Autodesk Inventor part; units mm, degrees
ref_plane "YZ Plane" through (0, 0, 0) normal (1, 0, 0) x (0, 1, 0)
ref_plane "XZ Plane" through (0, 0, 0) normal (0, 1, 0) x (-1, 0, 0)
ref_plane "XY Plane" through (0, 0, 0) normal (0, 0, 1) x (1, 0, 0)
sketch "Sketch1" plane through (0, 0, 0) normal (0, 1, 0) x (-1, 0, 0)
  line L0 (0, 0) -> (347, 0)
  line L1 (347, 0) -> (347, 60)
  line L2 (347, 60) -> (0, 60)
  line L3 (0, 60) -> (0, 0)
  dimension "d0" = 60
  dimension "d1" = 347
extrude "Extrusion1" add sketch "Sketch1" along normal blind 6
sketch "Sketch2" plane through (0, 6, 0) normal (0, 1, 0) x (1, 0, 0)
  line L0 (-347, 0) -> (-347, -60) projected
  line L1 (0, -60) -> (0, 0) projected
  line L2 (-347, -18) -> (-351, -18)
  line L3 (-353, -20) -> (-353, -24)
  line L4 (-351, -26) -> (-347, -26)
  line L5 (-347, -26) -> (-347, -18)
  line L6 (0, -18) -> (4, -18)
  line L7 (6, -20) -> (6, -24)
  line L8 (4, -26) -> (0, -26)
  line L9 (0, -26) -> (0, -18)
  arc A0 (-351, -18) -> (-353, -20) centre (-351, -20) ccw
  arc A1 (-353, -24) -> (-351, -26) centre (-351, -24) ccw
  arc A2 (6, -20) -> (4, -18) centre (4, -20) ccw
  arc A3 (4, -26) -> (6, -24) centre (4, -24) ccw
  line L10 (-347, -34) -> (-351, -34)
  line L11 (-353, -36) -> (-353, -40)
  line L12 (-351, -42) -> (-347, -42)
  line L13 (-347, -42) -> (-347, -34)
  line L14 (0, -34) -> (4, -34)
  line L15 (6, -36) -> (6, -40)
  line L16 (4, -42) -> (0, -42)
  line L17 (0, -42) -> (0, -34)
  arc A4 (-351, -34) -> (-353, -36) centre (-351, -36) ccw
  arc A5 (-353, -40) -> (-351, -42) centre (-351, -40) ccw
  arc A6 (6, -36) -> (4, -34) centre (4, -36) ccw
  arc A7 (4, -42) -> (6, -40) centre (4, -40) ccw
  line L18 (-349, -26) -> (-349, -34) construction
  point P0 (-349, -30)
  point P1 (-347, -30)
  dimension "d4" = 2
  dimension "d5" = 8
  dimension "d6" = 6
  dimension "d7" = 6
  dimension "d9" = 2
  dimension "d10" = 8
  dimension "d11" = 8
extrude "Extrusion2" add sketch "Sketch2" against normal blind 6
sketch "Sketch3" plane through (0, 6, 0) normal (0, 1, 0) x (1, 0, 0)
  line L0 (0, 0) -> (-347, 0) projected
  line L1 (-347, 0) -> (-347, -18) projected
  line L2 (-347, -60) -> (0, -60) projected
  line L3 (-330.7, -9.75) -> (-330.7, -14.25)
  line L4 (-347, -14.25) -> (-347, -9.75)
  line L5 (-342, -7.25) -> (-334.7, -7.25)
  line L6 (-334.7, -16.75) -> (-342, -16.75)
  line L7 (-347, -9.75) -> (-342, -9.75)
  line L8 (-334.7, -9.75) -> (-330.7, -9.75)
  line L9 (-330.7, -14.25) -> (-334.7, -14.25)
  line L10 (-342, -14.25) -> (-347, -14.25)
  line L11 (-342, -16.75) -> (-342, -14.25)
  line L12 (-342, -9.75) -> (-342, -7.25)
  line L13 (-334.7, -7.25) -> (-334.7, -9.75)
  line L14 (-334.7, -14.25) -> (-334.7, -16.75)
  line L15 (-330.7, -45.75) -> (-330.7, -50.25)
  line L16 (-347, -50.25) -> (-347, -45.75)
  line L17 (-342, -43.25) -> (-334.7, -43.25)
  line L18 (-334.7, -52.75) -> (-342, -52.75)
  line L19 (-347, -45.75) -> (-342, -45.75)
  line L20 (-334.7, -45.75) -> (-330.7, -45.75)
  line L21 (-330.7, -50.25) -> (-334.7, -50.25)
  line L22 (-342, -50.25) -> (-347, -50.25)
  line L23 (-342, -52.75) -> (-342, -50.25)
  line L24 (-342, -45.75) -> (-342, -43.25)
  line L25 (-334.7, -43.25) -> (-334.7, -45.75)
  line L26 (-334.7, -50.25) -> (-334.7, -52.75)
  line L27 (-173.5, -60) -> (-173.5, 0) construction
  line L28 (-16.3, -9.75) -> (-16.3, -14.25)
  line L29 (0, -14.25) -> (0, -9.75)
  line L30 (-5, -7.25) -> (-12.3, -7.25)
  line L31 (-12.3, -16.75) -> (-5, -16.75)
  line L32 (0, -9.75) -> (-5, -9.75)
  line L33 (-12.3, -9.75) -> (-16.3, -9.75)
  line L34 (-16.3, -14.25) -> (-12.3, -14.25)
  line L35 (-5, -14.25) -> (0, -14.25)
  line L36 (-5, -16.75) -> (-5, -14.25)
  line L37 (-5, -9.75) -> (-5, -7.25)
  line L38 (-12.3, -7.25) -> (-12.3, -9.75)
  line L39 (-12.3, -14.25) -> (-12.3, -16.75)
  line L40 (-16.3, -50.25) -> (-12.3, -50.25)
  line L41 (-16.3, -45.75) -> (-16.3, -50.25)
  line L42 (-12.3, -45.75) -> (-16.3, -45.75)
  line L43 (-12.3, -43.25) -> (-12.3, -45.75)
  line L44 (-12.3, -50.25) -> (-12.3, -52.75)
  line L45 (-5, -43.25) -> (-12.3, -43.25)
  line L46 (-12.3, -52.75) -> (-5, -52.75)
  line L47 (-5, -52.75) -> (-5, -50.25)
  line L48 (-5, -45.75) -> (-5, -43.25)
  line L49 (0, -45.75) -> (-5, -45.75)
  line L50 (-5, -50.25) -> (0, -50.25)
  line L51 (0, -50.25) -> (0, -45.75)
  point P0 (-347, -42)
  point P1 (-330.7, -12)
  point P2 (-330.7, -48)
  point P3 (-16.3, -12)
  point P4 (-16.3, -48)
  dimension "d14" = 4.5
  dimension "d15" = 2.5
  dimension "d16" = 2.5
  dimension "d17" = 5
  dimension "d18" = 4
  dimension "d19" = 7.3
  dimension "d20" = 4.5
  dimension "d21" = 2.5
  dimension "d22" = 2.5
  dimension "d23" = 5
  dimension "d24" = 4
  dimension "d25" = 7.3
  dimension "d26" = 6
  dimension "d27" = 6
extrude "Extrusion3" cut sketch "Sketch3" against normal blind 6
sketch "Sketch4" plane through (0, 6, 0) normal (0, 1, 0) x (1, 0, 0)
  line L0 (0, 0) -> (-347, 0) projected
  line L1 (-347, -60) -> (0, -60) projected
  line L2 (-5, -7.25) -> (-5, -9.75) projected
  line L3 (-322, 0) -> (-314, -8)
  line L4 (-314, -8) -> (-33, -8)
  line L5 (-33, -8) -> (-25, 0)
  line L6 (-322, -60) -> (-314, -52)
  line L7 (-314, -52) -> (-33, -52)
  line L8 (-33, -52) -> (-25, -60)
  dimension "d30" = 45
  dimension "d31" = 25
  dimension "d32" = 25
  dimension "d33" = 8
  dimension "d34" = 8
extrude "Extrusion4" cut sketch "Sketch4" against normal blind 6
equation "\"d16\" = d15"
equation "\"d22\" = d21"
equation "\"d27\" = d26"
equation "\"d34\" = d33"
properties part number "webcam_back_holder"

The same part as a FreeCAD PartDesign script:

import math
import FreeCAD as App
import Part
import Sketcher

V = App.Vector


def add_polygon(sketch, points):
    """Adds a closed chain of lines whose ends are joined by coincident constraints."""
    first, n = sketch.GeometryCount, len(points)
    for a, b in zip(points, points[1:] + points[:1]):
        sketch.addGeometry(Part.LineSegment(App.Vector(*a, 0), App.Vector(*b, 0)), False)
    for i in range(n):
        sketch.addConstraint(Sketcher.Constraint("Coincident", first + i, 2, first + (i + 1) % n, 1))

doc = App.newDocument("Part")
body = doc.addObject("PartDesign::Body", "Body")

# Sketch on XZ plane
sketch1 = doc.addObject("Sketcher::SketchObject", "Sketch")
body.addObject(sketch1)
sketch1.AttachmentSupport = (doc.XZ_Plane, [""])
sketch1.MapMode = "FlatFace"
add_polygon(sketch1, [(0, 60), (0, 0), (-347, 0), (-347, 60)])  # lines 0-3
sketch1.addConstraint(Sketcher.Constraint("Vertical", 0))
sketch1.addConstraint(Sketcher.Constraint("Horizontal", 1))
sketch1.addConstraint(Sketcher.Constraint("Vertical", 2))
sketch1.addConstraint(Sketcher.Constraint("Horizontal", 3))
sketch1.addConstraint(Sketcher.Constraint("Coincident", 0, 2, -1, 1))
sketch1.addConstraint(Sketcher.Constraint("DistanceX", 1, 2, 1, 1, 347.0))
sketch1.addConstraint(Sketcher.Constraint("DistanceY", 0, 2, 0, 1, 60.0))
pad1 = doc.addObject("PartDesign::Pad", "Pad")
body.addObject(pad1)
pad1.Profile = sketch1
pad1.Length = 6
pad1.Reversed = True

# Sketch on XZ plane
sketch2 = doc.addObject("Sketcher::SketchObject", "Sketch001")
body.addObject(sketch2)
sketch2.AttachmentSupport = (doc.XZ_Plane, [""])
sketch2.MapMode = "FlatFace"
sketch2.AttachmentOffset = App.Placement(V(0, 0, -6), App.Rotation())
sketch2.addGeometry(Part.LineSegment(V(-347, 42, 0), V(-347, 34, 0)), False)
sketch2.addGeometry(Part.LineSegment(V(-347, 34, 0), V(-351, 34, 0)), False)
sketch2.addGeometry(Part.ArcOfCircle(Part.Circle(V(-351, 36, 0), V(0, 0, 1), 2), math.radians(180), math.radians(270)), False)
sketch2.addGeometry(Part.LineSegment(V(-353, 36, 0), V(-353, 40, 0)), False)
sketch2.addGeometry(Part.ArcOfCircle(Part.Circle(V(-351, 40, 0), V(0, 0, 1), 2), math.radians(90), math.radians(180)), False)
sketch2.addGeometry(Part.LineSegment(V(-351, 42, 0), V(-347, 42, 0)), False)
sketch2.addGeometry(Part.LineSegment(V(-347, 26, 0), V(-347, 18, 0)), False)
sketch2.addGeometry(Part.LineSegment(V(-347, 18, 0), V(-351, 18, 0)), False)
sketch2.addGeometry(Part.ArcOfCircle(Part.Circle(V(-351, 20, 0), V(0, 0, 1), 2), math.radians(180), math.radians(270)), False)
sketch2.addGeometry(Part.LineSegment(V(-353, 20, 0), V(-353, 24, 0)), False)
sketch2.addGeometry(Part.ArcOfCircle(Part.Circle(V(-351, 24, 0), V(0, 0, 1), 2), math.radians(90), math.radians(180)), False)
sketch2.addGeometry(Part.LineSegment(V(-351, 26, 0), V(-347, 26, 0)), False)
sketch2.addGeometry(Part.LineSegment(V(0, 18, 0), V(0, 26, 0)), False)
sketch2.addGeometry(Part.LineSegment(V(0, 26, 0), V(4, 26, 0)), False)
sketch2.addGeometry(Part.ArcOfCircle(Part.Circle(V(4, 24, 0), V(0, 0, 1), 2), math.radians(0), math.radians(90)), False)
sketch2.addGeometry(Part.LineSegment(V(6, 24, 0), V(6, 20, 0)), False)
sketch2.addGeometry(Part.ArcOfCircle(Part.Circle(V(4, 20, 0), V(0, 0, 1), 2), math.radians(-90), math.radians(0)), False)
sketch2.addGeometry(Part.LineSegment(V(4, 18, 0), V(0, 18, 0)), False)
sketch2.addGeometry(Part.LineSegment(V(0, 34, 0), V(0, 42, 0)), False)
sketch2.addGeometry(Part.LineSegment(V(0, 42, 0), V(4, 42, 0)), False)
sketch2.addGeometry(Part.ArcOfCircle(Part.Circle(V(4, 40, 0), V(0, 0, 1), 2), math.radians(0), math.radians(90)), False)
sketch2.addGeometry(Part.LineSegment(V(6, 40, 0), V(6, 36, 0)), False)
sketch2.addGeometry(Part.ArcOfCircle(Part.Circle(V(4, 36, 0), V(0, 0, 1), 2), math.radians(-90), math.radians(0)), False)
sketch2.addGeometry(Part.LineSegment(V(4, 34, 0), V(0, 34, 0)), False)
sketch2.addConstraint(Sketcher.Constraint("Coincident", 0, 2, 1, 1))
sketch2.addConstraint(Sketcher.Constraint("Tangent", 1, 2, 2, 2))
sketch2.addConstraint(Sketcher.Constraint("Tangent", 2, 1, 3, 1))
sketch2.addConstraint(Sketcher.Constraint("Tangent", 3, 2, 4, 2))
sketch2.addConstraint(Sketcher.Constraint("Tangent", 4, 1, 5, 1))
sketch2.addConstraint(Sketcher.Constraint("Coincident", 5, 2, 0, 1))
sketch2.addConstraint(Sketcher.Constraint("Coincident", 6, 2, 7, 1))
sketch2.addConstraint(Sketcher.Constraint("Tangent", 7, 2, 8, 2))
sketch2.addConstraint(Sketcher.Constraint("Tangent", 8, 1, 9, 1))
sketch2.addConstraint(Sketcher.Constraint("Tangent", 9, 2, 10, 2))
sketch2.addConstraint(Sketcher.Constraint("Tangent", 10, 1, 11, 1))
sketch2.addConstraint(Sketcher.Constraint("Coincident", 11, 2, 6, 1))
sketch2.addConstraint(Sketcher.Constraint("Coincident", 12, 2, 13, 1))
sketch2.addConstraint(Sketcher.Constraint("Tangent", 13, 2, 14, 2))
sketch2.addConstraint(Sketcher.Constraint("Tangent", 14, 1, 15, 1))
sketch2.addConstraint(Sketcher.Constraint("Tangent", 15, 2, 16, 2))
sketch2.addConstraint(Sketcher.Constraint("Tangent", 16, 1, 17, 1))
sketch2.addConstraint(Sketcher.Constraint("Coincident", 17, 2, 12, 1))
sketch2.addConstraint(Sketcher.Constraint("Coincident", 18, 2, 19, 1))
sketch2.addConstraint(Sketcher.Constraint("Tangent", 19, 2, 20, 2))
sketch2.addConstraint(Sketcher.Constraint("Tangent", 20, 1, 21, 1))
sketch2.addConstraint(Sketcher.Constraint("Tangent", 21, 2, 22, 2))
sketch2.addConstraint(Sketcher.Constraint("Tangent", 22, 1, 23, 1))
sketch2.addConstraint(Sketcher.Constraint("Coincident", 23, 2, 18, 1))
sketch2.addConstraint(Sketcher.Constraint("Vertical", 0))
sketch2.addConstraint(Sketcher.Constraint("Horizontal", 1))
sketch2.addConstraint(Sketcher.Constraint("Vertical", 3))
sketch2.addConstraint(Sketcher.Constraint("Horizontal", 5))
sketch2.addConstraint(Sketcher.Constraint("Vertical", 6))
sketch2.addConstraint(Sketcher.Constraint("Horizontal", 7))
sketch2.addConstraint(Sketcher.Constraint("Vertical", 9))
sketch2.addConstraint(Sketcher.Constraint("Horizontal", 11))
sketch2.addConstraint(Sketcher.Constraint("Vertical", 12))
sketch2.addConstraint(Sketcher.Constraint("Horizontal", 13))
sketch2.addConstraint(Sketcher.Constraint("Vertical", 15))
sketch2.addConstraint(Sketcher.Constraint("Horizontal", 17))
sketch2.addConstraint(Sketcher.Constraint("Vertical", 18))
sketch2.addConstraint(Sketcher.Constraint("Horizontal", 19))
sketch2.addConstraint(Sketcher.Constraint("Vertical", 21))
sketch2.addConstraint(Sketcher.Constraint("Horizontal", 23))
sketch2.addConstraint(Sketcher.Constraint("Equal", 2, 4))
sketch2.addConstraint(Sketcher.Constraint("Equal", 4, 8))
sketch2.addConstraint(Sketcher.Constraint("Equal", 8, 10))
sketch2.addConstraint(Sketcher.Constraint("Equal", 10, 14))
sketch2.addConstraint(Sketcher.Constraint("Equal", 14, 16))
sketch2.addConstraint(Sketcher.Constraint("Equal", 16, 20))
sketch2.addConstraint(Sketcher.Constraint("Equal", 20, 22))
sketch2.addConstraint(Sketcher.Constraint("PointOnObject", 12, 2, -2))
sketch2.addConstraint(Sketcher.Constraint("PointOnObject", 18, 2, -2))
sketch2.addConstraint(Sketcher.Constraint("Horizontal", 10, 3, 14, 3))
sketch2.addConstraint(Sketcher.Constraint("Horizontal", 8, 3, 16, 3))
sketch2.addConstraint(Sketcher.Constraint("Horizontal", 4, 3, 20, 3))
sketch2.addConstraint(Sketcher.Constraint("Horizontal", 2, 3, 22, 3))
sketch2.addConstraint(Sketcher.Constraint("Vertical", 4, 3, 8, 3))
sketch2.addConstraint(Sketcher.Constraint("Vertical", 16, 3, 20, 3))
sketch2.addConstraint(Sketcher.Constraint("Vertical", 5, 2, 6, 2))
sketch2.addConstraint(Sketcher.Constraint("Equal", 11, 13))
sketch2.addConstraint(Sketcher.Constraint("Equal", 23, 3))
sketch2.addConstraint(Sketcher.Constraint("Equal", 0, 6))
sketch2.addConstraint(Sketcher.Constraint("Radius", 2, 2.0))
sketch2.addConstraint(Sketcher.Constraint("DistanceY", 0, 2, 0, 1, 8.0))
sketch2.addConstraint(Sketcher.Constraint("DistanceY", 10, 1, 1, 2, 8.0))
sketch2.addConstraint(Sketcher.Constraint("DistanceX", 2, 3, -1, 1, 351.0))
sketch2.addConstraint(Sketcher.Constraint("DistanceY", -1, 1, 2, 3, 36.0))
pad2 = doc.addObject("PartDesign::Pad", "Pad001")
body.addObject(pad2)
pad2.Profile = sketch2
pad2.Length = 6

# Sketch on XZ plane
sketch3 = doc.addObject("Sketcher::SketchObject", "Sketch002")
body.addObject(sketch3)
sketch3.AttachmentSupport = (doc.XZ_Plane, [""])
sketch3.MapMode = "FlatFace"
sketch3.AttachmentOffset = App.Placement(V(0, 0, -6), App.Rotation())
add_polygon(sketch3, [(-342, 9.8), (-347, 9.8), (-347, 14.2), (-342, 14.2), (-342, 16.8), (-334.7, 16.8), (-334.7, 14.2), (-330.7, 14.2), (-330.7, 9.8), (-334.7, 9.8), (-334.7, 7.2), (-342, 7.2)])  # lines 0-11
add_polygon(sketch3, [(-330.7, 50.2), (-330.7, 45.8), (-334.7, 45.8), (-334.7, 43.2), (-342, 43.2), (-342, 45.8), (-347, 45.8), (-347, 50.2), (-342, 50.2), (-342, 52.8), (-334.7, 52.8), (-334.7, 50.2)])  # lines 12-23
add_polygon(sketch3, [(-12.3, 9.8), (-16.3, 9.8), (-16.3, 14.2), (-12.3, 14.2), (-12.3, 16.8), (-5, 16.8), (-5, 14.2), (0, 14.2), (0, 9.8), (-5, 9.8), (-5, 7.2), (-12.3, 7.2)])  # lines 24-35
add_polygon(sketch3, [(-16.3, 45.8), (-16.3, 50.2), (-12.3, 50.2), (-12.3, 52.8), (-5, 52.8), (-5, 50.2), (0, 50.2), (0, 45.8), (-5, 45.8), (-5, 43.2), (-12.3, 43.2), (-12.3, 45.8)])  # lines 36-47
sketch3.addConstraint(Sketcher.Constraint("Horizontal", 0))
sketch3.addConstraint(Sketcher.Constraint("Vertical", 1))
sketch3.addConstraint(Sketcher.Constraint("Horizontal", 2))
sketch3.addConstraint(Sketcher.Constraint("Vertical", 3))
sketch3.addConstraint(Sketcher.Constraint("Horizontal", 4))
sketch3.addConstraint(Sketcher.Constraint("Vertical", 5))
sketch3.addConstraint(Sketcher.Constraint("Horizontal", 6))
sketch3.addConstraint(Sketcher.Constraint("Vertical", 7))
sketch3.addConstraint(Sketcher.Constraint("Horizontal", 8))
sketch3.addConstraint(Sketcher.Constraint("Vertical", 9))
sketch3.addConstraint(Sketcher.Constraint("Horizontal", 10))
sketch3.addConstraint(Sketcher.Constraint("Vertical", 11))
sketch3.addConstraint(Sketcher.Constraint("Vertical", 12))
sketch3.addConstraint(Sketcher.Constraint("Horizontal", 13))
sketch3.addConstraint(Sketcher.Constraint("Vertical", 14))
sketch3.addConstraint(Sketcher.Constraint("Horizontal", 15))
sketch3.addConstraint(Sketcher.Constraint("Vertical", 16))
sketch3.addConstraint(Sketcher.Constraint("Horizontal", 17))
sketch3.addConstraint(Sketcher.Constraint("Vertical", 18))
sketch3.addConstraint(Sketcher.Constraint("Horizontal", 19))
sketch3.addConstraint(Sketcher.Constraint("Vertical", 20))
sketch3.addConstraint(Sketcher.Constraint("Horizontal", 21))
sketch3.addConstraint(Sketcher.Constraint("Vertical", 22))
sketch3.addConstraint(Sketcher.Constraint("Horizontal", 23))
sketch3.addConstraint(Sketcher.Constraint("Horizontal", 24))
sketch3.addConstraint(Sketcher.Constraint("Vertical", 25))
sketch3.addConstraint(Sketcher.Constraint("Horizontal", 26))
sketch3.addConstraint(Sketcher.Constraint("Vertical", 27))
sketch3.addConstraint(Sketcher.Constraint("Horizontal", 28))
sketch3.addConstraint(Sketcher.Constraint("Vertical", 29))
sketch3.addConstraint(Sketcher.Constraint("Horizontal", 30))
sketch3.addConstraint(Sketcher.Constraint("Vertical", 31))
sketch3.addConstraint(Sketcher.Constraint("Horizontal", 32))
sketch3.addConstraint(Sketcher.Constraint("Vertical", 33))
sketch3.addConstraint(Sketcher.Constraint("Horizontal", 34))
sketch3.addConstraint(Sketcher.Constraint("Vertical", 35))
sketch3.addConstraint(Sketcher.Constraint("Vertical", 36))
sketch3.addConstraint(Sketcher.Constraint("Horizontal", 37))
sketch3.addConstraint(Sketcher.Constraint("Vertical", 38))
sketch3.addConstraint(Sketcher.Constraint("Horizontal", 39))
sketch3.addConstraint(Sketcher.Constraint("Vertical", 40))
sketch3.addConstraint(Sketcher.Constraint("Horizontal", 41))
sketch3.addConstraint(Sketcher.Constraint("Vertical", 42))
sketch3.addConstraint(Sketcher.Constraint("Horizontal", 43))
sketch3.addConstraint(Sketcher.Constraint("Vertical", 44))
sketch3.addConstraint(Sketcher.Constraint("Horizontal", 45))
sketch3.addConstraint(Sketcher.Constraint("Vertical", 46))
sketch3.addConstraint(Sketcher.Constraint("Horizontal", 47))
sketch3.addConstraint(Sketcher.Constraint("PointOnObject", 30, 2, -2))
sketch3.addConstraint(Sketcher.Constraint("PointOnObject", 41, 2, -2))
sketch3.addConstraint(Sketcher.Constraint("Horizontal", 2, 2, 5, 2))
sketch3.addConstraint(Sketcher.Constraint("Horizontal", 0, 2, 7, 2))
sketch3.addConstraint(Sketcher.Constraint("Horizontal", 13, 2, 16, 2))
sketch3.addConstraint(Sketcher.Constraint("Horizontal", 19, 2, 22, 2))
sketch3.addConstraint(Sketcher.Constraint("Horizontal", 11, 2, 24, 2))
sketch3.addConstraint(Sketcher.Constraint("Horizontal", 6, 2, 25, 2))
sketch3.addConstraint(Sketcher.Constraint("Horizontal", 4, 2, 27, 2))
sketch3.addConstraint(Sketcher.Constraint("Horizontal", 26, 2, 29, 2))
sketch3.addConstraint(Sketcher.Constraint("Horizontal", 24, 2, 31, 2))
sketch3.addConstraint(Sketcher.Constraint("Horizontal", 10, 2, 33, 2))
sketch3.addConstraint(Sketcher.Constraint("Horizontal", 23, 2, 36, 2))
sketch3.addConstraint(Sketcher.Constraint("Horizontal", 21, 2, 38, 2))
sketch3.addConstraint(Sketcher.Constraint("Horizontal", 37, 2, 40, 2))
sketch3.addConstraint(Sketcher.Constraint("Horizontal", 17, 2, 42, 2))
sketch3.addConstraint(Sketcher.Constraint("Horizontal", 15, 2, 44, 2))
sketch3.addConstraint(Sketcher.Constraint("Horizontal", 43, 2, 46, 2))
sketch3.addConstraint(Sketcher.Constraint("Vertical", 5, 2, 8, 2))
sketch3.addConstraint(Sketcher.Constraint("Vertical", 3, 2, 10, 2))
sketch3.addConstraint(Sketcher.Constraint("Vertical", 7, 2, 12, 2))
sketch3.addConstraint(Sketcher.Constraint("Vertical", 9, 2, 13, 2))
sketch3.addConstraint(Sketcher.Constraint("Vertical", 11, 2, 15, 2))
sketch3.addConstraint(Sketcher.Constraint("Vertical", 1, 2, 17, 2))
sketch3.addConstraint(Sketcher.Constraint("Vertical", 16, 2, 19, 2))
sketch3.addConstraint(Sketcher.Constraint("Vertical", 14, 2, 21, 2))
sketch3.addConstraint(Sketcher.Constraint("Vertical", 29, 2, 32, 2))
sketch3.addConstraint(Sketcher.Constraint("Vertical", 27, 2, 34, 2))
sketch3.addConstraint(Sketcher.Constraint("Vertical", 25, 2, 36, 2))
sketch3.addConstraint(Sketcher.Constraint("Vertical", 35, 2, 37, 2))
sketch3.addConstraint(Sketcher.Constraint("Vertical", 33, 2, 39, 2))
sketch3.addConstraint(Sketcher.Constraint("Vertical", 40, 2, 43, 2))
sketch3.addConstraint(Sketcher.Constraint("Vertical", 38, 2, 45, 2))
sketch3.addConstraint(Sketcher.Constraint("Equal", 23, 24))
sketch3.addConstraint(Sketcher.Constraint("Equal", 21, 28))
sketch3.addConstraint(Sketcher.Constraint("Equal", 19, 30))
sketch3.addConstraint(Sketcher.Constraint("Equal", 5, 9))
sketch3.addConstraint(Sketcher.Constraint("Equal", 7, 12))
sketch3.addConstraint(Sketcher.Constraint("Equal", 11, 14))
sketch3.addConstraint(Sketcher.Constraint("Equal", 16, 20))
sketch3.addConstraint(Sketcher.Constraint("DistanceX", 0, 2, 0, 1, 5.0))
sketch3.addConstraint(Sketcher.Constraint("DistanceX", 6, 1, 6, 2, 4.0))
sketch3.addConstraint(Sketcher.Constraint("DistanceX", 4, 1, 4, 2, 7.3))
sketch3.addConstraint(Sketcher.Constraint("DistanceY", 1, 1, 1, 2, 4.5))
sketch3.addConstraint(Sketcher.Constraint("DistanceY", 3, 1, 3, 2, 2.5))
sketch3.addConstraint(Sketcher.Constraint("DistanceX", 0, 2, -1, 1, 347.0))
sketch3.addConstraint(Sketcher.Constraint("DistanceY", 4, 2, 12, 2, 29.0))
sketch3.addConstraint(Sketcher.Constraint("DistanceY", -1, 1, 0, 2, 9.75))
pocket1 = doc.addObject("PartDesign::Pocket", "Pocket")
body.addObject(pocket1)
pocket1.Profile = sketch3
pocket1.Length = 6
pocket1.Reversed = True

# Sketch on XZ plane
sketch4 = doc.addObject("Sketcher::SketchObject", "Sketch003")
body.addObject(sketch4)
sketch4.AttachmentSupport = (doc.XZ_Plane, [""])
sketch4.MapMode = "FlatFace"
sketch4.AttachmentOffset = App.Placement(V(0, 0, -6), App.Rotation())
add_polygon(sketch4, [(-33, 8), (-25, 0), (-322, 0), (-314, 8)])  # lines 0-3
add_polygon(sketch4, [(-314, 52), (-322, 60), (-25, 60), (-33, 52)])  # lines 4-7
sketch4.addConstraint(Sketcher.Constraint("Horizontal", 1))
sketch4.addConstraint(Sketcher.Constraint("Horizontal", 3))
sketch4.addConstraint(Sketcher.Constraint("Horizontal", 5))
sketch4.addConstraint(Sketcher.Constraint("Horizontal", 7))
sketch4.addConstraint(Sketcher.Constraint("PointOnObject", 0, 2, -1))
sketch4.addConstraint(Sketcher.Constraint("Perpendicular", 0, 2))
sketch4.addConstraint(Sketcher.Constraint("Perpendicular", 2, 4))
sketch4.addConstraint(Sketcher.Constraint("Perpendicular", 4, 6))
sketch4.addConstraint(Sketcher.Constraint("Vertical", 1, 2, 4, 2))
sketch4.addConstraint(Sketcher.Constraint("Vertical", 0, 2, 5, 2))
sketch4.addConstraint(Sketcher.Constraint("Vertical", 3, 2, 6, 2))
sketch4.addConstraint(Sketcher.Constraint("Vertical", 2, 2, 7, 2))
sketch4.addConstraint(Sketcher.Constraint("DistanceX", 0, 2, -1, 1, 25.0))
sketch4.addConstraint(Sketcher.Constraint("DistanceY", -1, 1, 2, 2, 8.0))
sketch4.addConstraint(Sketcher.Constraint("DistanceX", 1, 2, 1, 1, 297.0))
sketch4.addConstraint(Sketcher.Constraint("DistanceY", -1, 1, 4, 2, 60.0))
pocket2 = doc.addObject("PartDesign::Pocket", "Pocket001")
body.addObject(pocket2)
pocket2.Profile = sketch4
pocket2.Length = 6
pocket2.Reversed = True

doc.recompute()
